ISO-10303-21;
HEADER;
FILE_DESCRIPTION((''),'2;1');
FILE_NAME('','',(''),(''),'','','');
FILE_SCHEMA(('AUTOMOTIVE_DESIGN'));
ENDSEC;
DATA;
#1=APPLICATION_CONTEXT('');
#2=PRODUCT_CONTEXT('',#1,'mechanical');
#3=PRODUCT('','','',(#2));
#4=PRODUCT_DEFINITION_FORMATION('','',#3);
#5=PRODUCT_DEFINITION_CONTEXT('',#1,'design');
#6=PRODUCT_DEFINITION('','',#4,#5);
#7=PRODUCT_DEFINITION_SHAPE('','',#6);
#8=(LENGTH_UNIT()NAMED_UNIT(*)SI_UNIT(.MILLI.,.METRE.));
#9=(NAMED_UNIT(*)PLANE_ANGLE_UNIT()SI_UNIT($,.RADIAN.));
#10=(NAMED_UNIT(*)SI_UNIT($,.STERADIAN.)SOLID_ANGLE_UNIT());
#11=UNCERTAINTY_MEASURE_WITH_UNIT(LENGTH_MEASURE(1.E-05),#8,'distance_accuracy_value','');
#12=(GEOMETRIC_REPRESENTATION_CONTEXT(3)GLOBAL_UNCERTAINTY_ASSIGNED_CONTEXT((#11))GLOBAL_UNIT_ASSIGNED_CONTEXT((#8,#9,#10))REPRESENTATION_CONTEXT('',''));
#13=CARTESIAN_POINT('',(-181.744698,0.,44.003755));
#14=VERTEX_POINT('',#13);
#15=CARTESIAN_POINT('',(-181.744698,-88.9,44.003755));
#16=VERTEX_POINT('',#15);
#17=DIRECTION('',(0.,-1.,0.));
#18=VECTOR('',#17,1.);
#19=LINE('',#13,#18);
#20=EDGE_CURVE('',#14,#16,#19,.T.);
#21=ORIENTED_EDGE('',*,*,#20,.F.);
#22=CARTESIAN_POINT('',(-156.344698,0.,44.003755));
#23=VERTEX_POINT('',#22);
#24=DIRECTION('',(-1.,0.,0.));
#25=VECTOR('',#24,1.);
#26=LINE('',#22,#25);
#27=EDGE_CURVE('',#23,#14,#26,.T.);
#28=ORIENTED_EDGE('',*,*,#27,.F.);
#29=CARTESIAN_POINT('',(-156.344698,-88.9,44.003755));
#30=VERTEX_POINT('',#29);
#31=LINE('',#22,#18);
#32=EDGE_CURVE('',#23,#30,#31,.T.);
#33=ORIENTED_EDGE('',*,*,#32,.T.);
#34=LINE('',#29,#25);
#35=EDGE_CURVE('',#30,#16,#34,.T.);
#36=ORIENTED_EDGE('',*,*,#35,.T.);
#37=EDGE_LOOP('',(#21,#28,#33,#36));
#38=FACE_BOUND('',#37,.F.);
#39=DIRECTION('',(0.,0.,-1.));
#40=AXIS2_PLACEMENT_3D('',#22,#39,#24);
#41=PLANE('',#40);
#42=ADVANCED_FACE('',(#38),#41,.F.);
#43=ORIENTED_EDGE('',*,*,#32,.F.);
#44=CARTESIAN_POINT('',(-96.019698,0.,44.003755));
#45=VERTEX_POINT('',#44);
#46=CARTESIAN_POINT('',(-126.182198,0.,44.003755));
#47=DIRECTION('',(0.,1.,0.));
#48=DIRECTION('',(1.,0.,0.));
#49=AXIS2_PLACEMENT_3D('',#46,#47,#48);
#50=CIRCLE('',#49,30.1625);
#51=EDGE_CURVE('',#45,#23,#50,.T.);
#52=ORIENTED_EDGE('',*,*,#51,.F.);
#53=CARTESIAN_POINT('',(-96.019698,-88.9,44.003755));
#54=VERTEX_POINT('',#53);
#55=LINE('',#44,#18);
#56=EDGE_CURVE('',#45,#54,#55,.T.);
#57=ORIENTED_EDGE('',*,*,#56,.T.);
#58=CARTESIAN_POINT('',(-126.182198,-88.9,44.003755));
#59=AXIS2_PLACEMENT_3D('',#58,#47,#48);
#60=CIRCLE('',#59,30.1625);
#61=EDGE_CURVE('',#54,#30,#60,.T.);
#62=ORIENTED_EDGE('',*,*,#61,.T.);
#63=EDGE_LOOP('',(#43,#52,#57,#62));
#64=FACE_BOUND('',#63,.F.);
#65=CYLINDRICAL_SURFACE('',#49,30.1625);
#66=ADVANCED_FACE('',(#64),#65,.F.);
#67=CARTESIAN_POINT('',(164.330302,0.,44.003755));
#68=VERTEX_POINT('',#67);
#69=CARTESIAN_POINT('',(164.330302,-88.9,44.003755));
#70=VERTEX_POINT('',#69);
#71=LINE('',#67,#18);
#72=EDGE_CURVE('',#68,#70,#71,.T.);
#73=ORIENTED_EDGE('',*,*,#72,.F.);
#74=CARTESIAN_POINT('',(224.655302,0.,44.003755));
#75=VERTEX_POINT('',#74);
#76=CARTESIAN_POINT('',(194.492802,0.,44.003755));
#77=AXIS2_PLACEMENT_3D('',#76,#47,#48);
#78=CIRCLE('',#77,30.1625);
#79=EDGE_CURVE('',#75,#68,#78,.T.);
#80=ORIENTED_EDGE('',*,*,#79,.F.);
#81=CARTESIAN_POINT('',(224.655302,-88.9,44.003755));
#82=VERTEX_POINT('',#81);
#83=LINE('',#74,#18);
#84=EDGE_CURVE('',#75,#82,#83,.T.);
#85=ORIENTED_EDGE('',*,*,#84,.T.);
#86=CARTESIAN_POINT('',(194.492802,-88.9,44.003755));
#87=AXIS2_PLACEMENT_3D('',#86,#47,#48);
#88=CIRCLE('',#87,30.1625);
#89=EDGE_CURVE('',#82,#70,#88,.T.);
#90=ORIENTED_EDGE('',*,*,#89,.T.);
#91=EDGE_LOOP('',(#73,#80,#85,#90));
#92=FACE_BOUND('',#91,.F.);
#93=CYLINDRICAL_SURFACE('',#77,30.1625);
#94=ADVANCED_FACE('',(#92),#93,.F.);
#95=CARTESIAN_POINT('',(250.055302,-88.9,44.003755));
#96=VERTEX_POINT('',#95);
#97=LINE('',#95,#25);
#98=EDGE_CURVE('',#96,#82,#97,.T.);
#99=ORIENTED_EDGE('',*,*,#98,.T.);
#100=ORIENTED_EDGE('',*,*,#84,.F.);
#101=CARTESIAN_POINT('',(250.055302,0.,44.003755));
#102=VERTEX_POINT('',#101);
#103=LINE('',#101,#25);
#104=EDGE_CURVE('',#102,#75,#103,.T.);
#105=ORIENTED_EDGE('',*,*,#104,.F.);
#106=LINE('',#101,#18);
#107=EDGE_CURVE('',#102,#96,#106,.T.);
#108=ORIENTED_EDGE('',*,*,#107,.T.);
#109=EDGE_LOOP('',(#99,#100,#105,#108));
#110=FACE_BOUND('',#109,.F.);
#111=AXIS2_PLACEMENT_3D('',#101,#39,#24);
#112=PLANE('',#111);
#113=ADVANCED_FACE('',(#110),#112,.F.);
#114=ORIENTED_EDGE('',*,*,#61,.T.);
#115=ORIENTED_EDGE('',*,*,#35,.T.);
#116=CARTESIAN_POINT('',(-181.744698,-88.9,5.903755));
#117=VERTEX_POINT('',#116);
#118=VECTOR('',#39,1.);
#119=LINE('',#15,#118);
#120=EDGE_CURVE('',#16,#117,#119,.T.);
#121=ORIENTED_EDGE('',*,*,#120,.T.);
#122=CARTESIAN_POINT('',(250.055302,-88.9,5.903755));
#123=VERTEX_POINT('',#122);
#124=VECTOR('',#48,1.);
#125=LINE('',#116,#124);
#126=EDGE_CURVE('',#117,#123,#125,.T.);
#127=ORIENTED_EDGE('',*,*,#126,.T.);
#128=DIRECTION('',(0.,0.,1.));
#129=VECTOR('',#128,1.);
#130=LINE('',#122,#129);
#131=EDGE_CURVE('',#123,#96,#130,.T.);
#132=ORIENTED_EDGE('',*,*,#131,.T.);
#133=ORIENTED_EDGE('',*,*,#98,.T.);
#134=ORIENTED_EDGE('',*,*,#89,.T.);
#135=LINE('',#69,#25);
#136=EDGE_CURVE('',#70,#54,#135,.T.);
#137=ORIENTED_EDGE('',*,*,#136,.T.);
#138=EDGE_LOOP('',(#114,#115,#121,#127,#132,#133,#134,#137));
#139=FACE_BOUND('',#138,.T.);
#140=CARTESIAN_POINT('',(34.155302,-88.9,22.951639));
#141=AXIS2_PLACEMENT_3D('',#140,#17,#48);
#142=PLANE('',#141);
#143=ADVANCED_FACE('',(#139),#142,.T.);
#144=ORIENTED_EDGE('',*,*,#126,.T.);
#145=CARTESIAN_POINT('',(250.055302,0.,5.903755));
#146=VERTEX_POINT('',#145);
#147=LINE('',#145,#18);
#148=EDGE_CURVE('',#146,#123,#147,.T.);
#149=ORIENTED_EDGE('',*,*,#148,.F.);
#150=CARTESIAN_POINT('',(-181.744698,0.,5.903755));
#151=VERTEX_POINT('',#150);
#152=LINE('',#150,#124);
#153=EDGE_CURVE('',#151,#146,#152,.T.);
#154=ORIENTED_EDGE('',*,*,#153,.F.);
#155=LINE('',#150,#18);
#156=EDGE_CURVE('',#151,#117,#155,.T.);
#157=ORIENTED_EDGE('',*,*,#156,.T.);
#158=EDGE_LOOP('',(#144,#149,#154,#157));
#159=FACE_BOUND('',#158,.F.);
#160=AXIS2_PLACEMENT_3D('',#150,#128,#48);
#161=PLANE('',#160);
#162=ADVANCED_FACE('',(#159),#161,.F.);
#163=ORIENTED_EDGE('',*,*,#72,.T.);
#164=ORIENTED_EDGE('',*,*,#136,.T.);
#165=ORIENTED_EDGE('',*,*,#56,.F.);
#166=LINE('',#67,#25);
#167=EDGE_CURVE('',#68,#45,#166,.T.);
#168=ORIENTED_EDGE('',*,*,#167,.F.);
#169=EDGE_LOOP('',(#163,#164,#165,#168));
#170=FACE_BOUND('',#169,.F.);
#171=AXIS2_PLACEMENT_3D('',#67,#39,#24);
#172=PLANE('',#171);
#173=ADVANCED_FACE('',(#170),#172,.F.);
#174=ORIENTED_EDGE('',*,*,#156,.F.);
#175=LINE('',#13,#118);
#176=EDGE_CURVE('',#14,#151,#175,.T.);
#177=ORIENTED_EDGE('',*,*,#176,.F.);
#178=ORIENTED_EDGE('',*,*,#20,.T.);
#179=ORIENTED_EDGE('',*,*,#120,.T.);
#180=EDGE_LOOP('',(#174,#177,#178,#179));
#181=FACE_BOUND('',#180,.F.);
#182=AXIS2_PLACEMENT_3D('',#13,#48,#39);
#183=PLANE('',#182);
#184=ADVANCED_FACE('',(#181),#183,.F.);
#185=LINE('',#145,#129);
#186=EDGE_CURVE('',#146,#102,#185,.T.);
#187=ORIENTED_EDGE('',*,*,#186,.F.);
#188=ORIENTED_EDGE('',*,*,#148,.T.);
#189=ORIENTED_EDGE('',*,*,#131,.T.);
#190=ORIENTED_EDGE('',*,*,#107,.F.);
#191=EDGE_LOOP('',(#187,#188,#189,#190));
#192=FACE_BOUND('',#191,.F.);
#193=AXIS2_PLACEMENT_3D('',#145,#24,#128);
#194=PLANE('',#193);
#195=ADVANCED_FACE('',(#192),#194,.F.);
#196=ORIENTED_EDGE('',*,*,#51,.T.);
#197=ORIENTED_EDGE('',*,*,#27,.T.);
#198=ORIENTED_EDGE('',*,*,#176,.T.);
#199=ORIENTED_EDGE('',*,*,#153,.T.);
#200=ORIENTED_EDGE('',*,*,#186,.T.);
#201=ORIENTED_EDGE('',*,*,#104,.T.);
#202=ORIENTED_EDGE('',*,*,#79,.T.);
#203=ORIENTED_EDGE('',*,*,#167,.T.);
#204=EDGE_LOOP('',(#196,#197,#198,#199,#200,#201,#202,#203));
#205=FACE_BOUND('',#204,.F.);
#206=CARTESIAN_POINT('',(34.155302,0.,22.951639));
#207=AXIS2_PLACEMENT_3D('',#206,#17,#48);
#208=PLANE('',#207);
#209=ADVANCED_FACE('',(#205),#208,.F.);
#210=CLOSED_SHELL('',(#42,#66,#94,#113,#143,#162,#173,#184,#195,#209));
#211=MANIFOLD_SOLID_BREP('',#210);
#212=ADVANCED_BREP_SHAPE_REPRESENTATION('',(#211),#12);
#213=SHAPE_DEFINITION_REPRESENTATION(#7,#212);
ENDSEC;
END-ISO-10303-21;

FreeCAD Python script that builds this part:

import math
import FreeCAD as App
import Part
import Sketcher
from FreeCAD import Vector
Q = App.Units.Quantity

doc = App.newDocument("Part")
body = doc.addObject("PartDesign::Body", "Body")

# Sketch on XZ plane
sketch1 = body.newObject("Sketcher::SketchObject", "Sketch")
sketch1.AttachmentSupport = (doc.getObject("XZ_Plane"), [""])
sketch1.MapMode = "FlatFace"
sketch1.addGeometry(Part.LineSegment(Vector(-156, 44, 0), Vector(-182, 44, 0)), False)
sketch1.addGeometry(Part.LineSegment(Vector(-182, 44, 0), Vector(-182, 6, 0)), False)
sketch1.addGeometry(Part.LineSegment(Vector(-182, 6, 0), Vector(250, 6, 0)), False)
sketch1.addGeometry(Part.LineSegment(Vector(250, 6, 0), Vector(250, 44, 0)), False)
sketch1.addGeometry(Part.LineSegment(Vector(250, 44, 0), Vector(225, 44, 0)), False)
sketch1.addGeometry(Part.ArcOfCircle(Part.Circle(Vector(194, 44, 0), Vector(0, 0, 1), 30), math.radians(180), math.radians(360)), False)
sketch1.addGeometry(Part.LineSegment(Vector(164, 44, 0), Vector(-96, 44, 0)), False)
sketch1.addGeometry(Part.ArcOfCircle(Part.Circle(Vector(-126, 44, 0), Vector(0, 0, 1), 30), math.radians(180), math.radians(360)), False)
sketch1.addConstraint(Sketcher.Constraint("Coincident", 0, 2, 1, 1))
sketch1.addConstraint(Sketcher.Constraint("Coincident", 1, 2, 2, 1))
sketch1.addConstraint(Sketcher.Constraint("Coincident", 2, 2, 3, 1))
sketch1.addConstraint(Sketcher.Constraint("Coincident", 3, 2, 4, 1))
sketch1.addConstraint(Sketcher.Constraint("Coincident", 4, 2, 5, 2))
sketch1.addConstraint(Sketcher.Constraint("Coincident", 5, 1, 6, 1))
sketch1.addConstraint(Sketcher.Constraint("Coincident", 6, 2, 7, 2))
sketch1.addConstraint(Sketcher.Constraint("Coincident", 7, 1, 0, 1))
sketch1.addConstraint(Sketcher.Constraint("Horizontal", 0))
sketch1.addConstraint(Sketcher.Constraint("Vertical", 1))
sketch1.addConstraint(Sketcher.Constraint("Horizontal", 2))
sketch1.addConstraint(Sketcher.Constraint("Vertical", 3))
sketch1.addConstraint(Sketcher.Constraint("Horizontal", 4))
sketch1.addConstraint(Sketcher.Constraint("Horizontal", 6))
sketch1.addConstraint(Sketcher.Constraint("Equal", 5, 7))
sketch1.addConstraint(Sketcher.Constraint("Horizontal", 5, 3, 7, 3))
sketch1.addConstraint(Sketcher.Constraint("Horizontal", 7, 3, 0, 2))
sketch1.addConstraint(Sketcher.Constraint("Horizontal", 0, 2, 3, 2))
sketch1.addConstraint(Sketcher.Constraint("Horizontal", 4, 2, 5, 1))
sketch1.addConstraint(Sketcher.Constraint("Equal", 0, 4))
sketch1.addConstraint(Sketcher.Constraint("DistanceX", 0, 2, 0, 1, Q("1 in")))
sketch1.addConstraint(Sketcher.Constraint("DistanceX", 2, 1, 2, 2, Q("17 in")))
sketch1.addConstraint(Sketcher.Constraint("DistanceY", 1, 2, 1, 1, Q("1.5 in")))
sketch1.addConstraint(Sketcher.Constraint("Radius", 5, Q("1.1875 in")))
sketch1.addConstraint(Sketcher.Constraint("DistanceX", 7, 3, -1, 1, Q("126.182198 mm")))
sketch1.addConstraint(Sketcher.Constraint("DistanceY", -1, 1, 5, 3, Q("44.003755 mm")))
pad1 = body.newObject("PartDesign::Pad", "Pad")
pad1.Profile = sketch1
pad1.Length = Q("3.5 in")

doc.recompute()
